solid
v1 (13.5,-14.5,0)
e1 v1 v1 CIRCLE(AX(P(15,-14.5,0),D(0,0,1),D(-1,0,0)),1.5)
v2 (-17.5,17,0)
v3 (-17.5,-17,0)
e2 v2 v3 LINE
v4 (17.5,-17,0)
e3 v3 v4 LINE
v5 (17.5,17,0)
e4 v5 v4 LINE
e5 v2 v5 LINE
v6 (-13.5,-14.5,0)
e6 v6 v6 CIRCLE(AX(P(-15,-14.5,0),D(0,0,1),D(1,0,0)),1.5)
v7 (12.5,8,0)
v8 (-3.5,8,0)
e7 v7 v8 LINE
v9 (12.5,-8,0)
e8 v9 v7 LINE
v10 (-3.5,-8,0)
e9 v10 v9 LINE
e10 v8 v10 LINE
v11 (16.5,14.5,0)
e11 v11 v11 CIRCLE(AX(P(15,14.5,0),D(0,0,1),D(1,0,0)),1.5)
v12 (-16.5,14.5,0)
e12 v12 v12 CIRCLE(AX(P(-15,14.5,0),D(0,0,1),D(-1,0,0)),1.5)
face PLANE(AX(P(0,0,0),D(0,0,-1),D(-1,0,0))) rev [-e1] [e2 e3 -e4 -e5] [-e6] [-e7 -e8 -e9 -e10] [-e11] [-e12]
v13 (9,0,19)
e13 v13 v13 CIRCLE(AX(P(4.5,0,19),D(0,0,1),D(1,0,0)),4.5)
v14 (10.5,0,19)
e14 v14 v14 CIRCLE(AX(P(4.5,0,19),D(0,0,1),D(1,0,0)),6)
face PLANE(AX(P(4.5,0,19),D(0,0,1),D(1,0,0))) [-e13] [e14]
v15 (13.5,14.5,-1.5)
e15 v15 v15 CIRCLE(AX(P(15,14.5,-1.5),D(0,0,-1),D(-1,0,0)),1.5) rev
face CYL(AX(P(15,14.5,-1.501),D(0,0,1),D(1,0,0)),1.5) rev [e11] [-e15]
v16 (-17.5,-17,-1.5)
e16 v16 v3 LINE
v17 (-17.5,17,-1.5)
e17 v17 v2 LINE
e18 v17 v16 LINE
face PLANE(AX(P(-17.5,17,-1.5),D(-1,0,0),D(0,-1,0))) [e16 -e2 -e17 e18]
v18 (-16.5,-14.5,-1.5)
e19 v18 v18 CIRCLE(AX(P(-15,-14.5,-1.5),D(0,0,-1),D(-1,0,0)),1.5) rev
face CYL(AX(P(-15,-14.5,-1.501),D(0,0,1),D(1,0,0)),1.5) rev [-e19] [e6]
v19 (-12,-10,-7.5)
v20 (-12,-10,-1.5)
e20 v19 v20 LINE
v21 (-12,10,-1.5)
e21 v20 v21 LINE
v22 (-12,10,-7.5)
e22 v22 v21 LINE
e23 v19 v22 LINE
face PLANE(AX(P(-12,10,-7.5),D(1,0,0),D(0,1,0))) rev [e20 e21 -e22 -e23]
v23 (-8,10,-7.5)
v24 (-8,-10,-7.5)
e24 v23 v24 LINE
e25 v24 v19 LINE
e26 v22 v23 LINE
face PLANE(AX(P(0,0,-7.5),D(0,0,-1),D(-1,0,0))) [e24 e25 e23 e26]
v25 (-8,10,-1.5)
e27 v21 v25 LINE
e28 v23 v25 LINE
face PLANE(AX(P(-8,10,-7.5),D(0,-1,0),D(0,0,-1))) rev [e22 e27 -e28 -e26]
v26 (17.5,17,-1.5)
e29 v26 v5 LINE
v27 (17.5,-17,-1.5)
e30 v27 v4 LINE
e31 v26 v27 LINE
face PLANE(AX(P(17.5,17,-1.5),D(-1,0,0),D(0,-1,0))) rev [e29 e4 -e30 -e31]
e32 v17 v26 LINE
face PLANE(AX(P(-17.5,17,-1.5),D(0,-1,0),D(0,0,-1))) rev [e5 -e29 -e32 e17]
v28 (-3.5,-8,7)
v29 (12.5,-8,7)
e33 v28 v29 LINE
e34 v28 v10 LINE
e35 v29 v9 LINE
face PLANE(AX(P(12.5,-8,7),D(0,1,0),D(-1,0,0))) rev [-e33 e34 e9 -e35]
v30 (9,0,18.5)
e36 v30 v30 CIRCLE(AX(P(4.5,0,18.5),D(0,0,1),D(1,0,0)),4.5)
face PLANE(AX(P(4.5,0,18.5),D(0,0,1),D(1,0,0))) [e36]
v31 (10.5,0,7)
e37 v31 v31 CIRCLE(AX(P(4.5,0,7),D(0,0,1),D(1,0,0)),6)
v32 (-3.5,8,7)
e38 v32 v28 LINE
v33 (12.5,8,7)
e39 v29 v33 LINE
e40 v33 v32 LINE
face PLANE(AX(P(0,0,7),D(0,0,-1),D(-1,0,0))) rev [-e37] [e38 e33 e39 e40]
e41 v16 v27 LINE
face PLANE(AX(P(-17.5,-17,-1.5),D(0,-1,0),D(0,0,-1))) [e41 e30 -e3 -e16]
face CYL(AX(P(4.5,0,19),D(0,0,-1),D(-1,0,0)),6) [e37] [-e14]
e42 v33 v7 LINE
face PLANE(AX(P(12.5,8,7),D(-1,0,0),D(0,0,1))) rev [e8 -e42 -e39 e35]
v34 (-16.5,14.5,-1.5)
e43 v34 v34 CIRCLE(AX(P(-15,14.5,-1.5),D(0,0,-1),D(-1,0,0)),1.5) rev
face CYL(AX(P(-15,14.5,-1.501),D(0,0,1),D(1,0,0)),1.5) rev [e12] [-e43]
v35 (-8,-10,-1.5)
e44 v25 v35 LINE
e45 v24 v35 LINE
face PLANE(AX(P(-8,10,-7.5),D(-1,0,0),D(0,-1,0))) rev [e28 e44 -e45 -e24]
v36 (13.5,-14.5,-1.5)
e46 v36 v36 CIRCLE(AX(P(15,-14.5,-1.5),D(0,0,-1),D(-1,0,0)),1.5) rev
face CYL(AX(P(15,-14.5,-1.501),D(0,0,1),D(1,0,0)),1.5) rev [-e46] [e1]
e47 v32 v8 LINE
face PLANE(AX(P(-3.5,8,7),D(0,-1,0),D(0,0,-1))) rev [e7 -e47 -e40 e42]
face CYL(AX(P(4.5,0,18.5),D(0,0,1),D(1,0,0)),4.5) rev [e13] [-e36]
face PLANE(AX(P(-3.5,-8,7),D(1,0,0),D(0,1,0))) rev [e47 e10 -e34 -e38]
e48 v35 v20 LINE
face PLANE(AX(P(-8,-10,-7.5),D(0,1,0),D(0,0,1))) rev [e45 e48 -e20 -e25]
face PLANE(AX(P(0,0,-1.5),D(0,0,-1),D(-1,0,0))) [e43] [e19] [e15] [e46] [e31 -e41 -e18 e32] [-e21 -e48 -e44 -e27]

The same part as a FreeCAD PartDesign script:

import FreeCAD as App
import Part
import Sketcher

V = App.Vector


def add_polygon(sketch, points):
    """Adds a closed chain of lines whose ends are joined by coincident constraints."""
    first, n = sketch.GeometryCount, len(points)
    for a, b in zip(points, points[1:] + points[:1]):
        sketch.addGeometry(Part.LineSegment(App.Vector(*a, 0), App.Vector(*b, 0)), False)
    for i in range(n):
        sketch.addConstraint(Sketcher.Constraint("Coincident", first + i, 2, first + (i + 1) % n, 1))

doc = App.newDocument("Part")
params = doc.addObject("Spreadsheet::Sheet", "Params")
for row, (alias, value) in enumerate([
    ("sketch1_width", "35 mm"),
    ("sketch1_height", "34 mm"),
    ("pad1_length", "1.5 mm"),
    ("sketch2_diameter", "3 mm"),
    ("sketch3_diameter", "3 mm"),
    ("sketch4_diameter", "3 mm"),
    ("sketch5_diameter", "3 mm"),
    ("sketch6_width", "16 mm"),
    ("pad2_length", "7 mm"),
    ("sketch7_diameter", "12 mm"),
    ("pad3_length", "12 mm"),
    ("sketch8_diameter", "9 mm"),
    ("pocket5_length", "0.5 mm"),
    ("sketch9_width", "4 mm"),
    ("sketch9_height", "20 mm"),
    ("pad4_length", "6 mm"),
], start=1):
    params.set(f"A{row}", alias)
    params.set(f"B{row}", "=" + value)
    params.setAlias(f"B{row}", alias)

body = doc.addObject("PartDesign::Body", "Body")

sketch1 = body.newObject("Sketcher::SketchObject", "Sketch")
sketch1.AttachmentSupport = (doc.getObject("XY_Plane"), [""])
sketch1.MapMode = "FlatFace"
add_polygon(sketch1, [(-18, 17), (-18, -17), (18, -17), (18, 17)])
sketch1.addConstraint(Sketcher.Constraint("Vertical", 0))
sketch1.addConstraint(Sketcher.Constraint("Horizontal", 1))
sketch1.addConstraint(Sketcher.Constraint("Vertical", 2))
sketch1.addConstraint(Sketcher.Constraint("Horizontal", 3))
sketch1.addConstraint(Sketcher.Constraint("Symmetric", 0, 2, 2, 2, -1, 1))
sketch1.addConstraint(Sketcher.Constraint("DistanceX", 1, 1, 1, 2, 35.0))
sketch1.addConstraint(Sketcher.Constraint("DistanceY", 0, 2, 0, 1, 34.0))
sketch1.setExpression("Constraints[9]", "Params.sketch1_width")
sketch1.setExpression("Constraints[10]", "Params.sketch1_height")
pad1 = body.newObject("PartDesign::Pad", "Pad")
pad1.Profile = sketch1
pad1.setExpression("Length", "Params.pad1_length")
pad1.Reversed = True

sketch2 = body.newObject("Sketcher::SketchObject", "Sketch001")
sketch2.AttachmentSupport = (doc.getObject("XY_Plane"), [""])
sketch2.MapMode = "FlatFace"
sketch2.addGeometry(Part.Circle(V(-15, -14.5, 0), V(0, 0, 1), 1.5), False)
sketch2.addConstraint(Sketcher.Constraint("Diameter", 0, 3.0))
sketch2.addConstraint(Sketcher.Constraint("DistanceX", 0, 3, -1, 1, 15.0))
sketch2.addConstraint(Sketcher.Constraint("DistanceY", 0, 3, -1, 1, 14.5))
sketch2.setExpression("Constraints[0]", "Params.sketch2_diameter")
pocket1 = body.newObject("PartDesign::Pocket", "Pocket")
pocket1.Profile = sketch2
pocket1.Type = "UpToFirst"

sketch3 = body.newObject("Sketcher::SketchObject", "Sketch002")
sketch3.AttachmentSupport = (doc.getObject("XY_Plane"), [""])
sketch3.MapMode = "FlatFace"
sketch3.addGeometry(Part.Circle(V(15, -14.5, 0), V(0, 0, 1), 1.5), False)
sketch3.addConstraint(Sketcher.Constraint("Diameter", 0, 3.0))
sketch3.addConstraint(Sketcher.Constraint("DistanceX", -1, 1, 0, 3, 15.0))
sketch3.addConstraint(Sketcher.Constraint("DistanceY", 0, 3, -1, 1, 14.5))
sketch3.setExpression("Constraints[0]", "Params.sketch3_diameter")
pocket2 = body.newObject("PartDesign::Pocket", "Pocket001")
pocket2.Profile = sketch3
pocket2.Type = "UpToFirst"

sketch4 = body.newObject("Sketcher::SketchObject", "Sketch003")
sketch4.AttachmentSupport = (doc.getObject("XY_Plane"), [""])
sketch4.MapMode = "FlatFace"
sketch4.addGeometry(Part.Circle(V(15, 14.5, 0), V(0, 0, 1), 1.5), False)
sketch4.addConstraint(Sketcher.Constraint("Diameter", 0, 3.0))
sketch4.addConstraint(Sketcher.Constraint("DistanceX", -1, 1, 0, 3, 15.0))
sketch4.addConstraint(Sketcher.Constraint("DistanceY", -1, 1, 0, 3, 14.5))
sketch4.setExpression("Constraints[0]", "Params.sketch4_diameter")
pocket3 = body.newObject("PartDesign::Pocket", "Pocket002")
pocket3.Profile = sketch4
pocket3.Type = "UpToFirst"

sketch5 = body.newObject("Sketcher::SketchObject", "Sketch004")
sketch5.AttachmentSupport = (doc.getObject("XY_Plane"), [""])
sketch5.MapMode = "FlatFace"
sketch5.addGeometry(Part.Circle(V(-15, 14.5, 0), V(0, 0, 1), 1.5), False)
sketch5.addConstraint(Sketcher.Constraint("Diameter", 0, 3.0))
sketch5.addConstraint(Sketcher.Constraint("DistanceX", 0, 3, -1, 1, 15.0))
sketch5.addConstraint(Sketcher.Constraint("DistanceY", -1, 1, 0, 3, 14.5))
sketch5.setExpression("Constraints[0]", "Params.sketch5_diameter")
pocket4 = body.newObject("PartDesign::Pocket", "Pocket003")
pocket4.Profile = sketch5
pocket4.Type = "UpToFirst"

sketch6 = body.newObject("Sketcher::SketchObject", "Sketch005")
sketch6.AttachmentSupport = (doc.getObject("XY_Plane"), [""])
sketch6.MapMode = "FlatFace"
add_polygon(sketch6, [(-4, 8), (-4, -8), (12, -8), (12, 8)])
sketch6.addConstraint(Sketcher.Constraint("Vertical", 0))
sketch6.addConstraint(Sketcher.Constraint("Horizontal", 1))
sketch6.addConstraint(Sketcher.Constraint("Vertical", 2))
sketch6.addConstraint(Sketcher.Constraint("Horizontal", 3))
sketch6.addConstraint(Sketcher.Constraint("Equal", 3, 0))
sketch6.addConstraint(Sketcher.Constraint("DistanceX", 1, 1, 1, 2, 16.0))
sketch6.addConstraint(Sketcher.Constraint("DistanceY", 0, 2, -1, 1, 8.0))
sketch6.addConstraint(Sketcher.Constraint("DistanceX", 0, 2, -1, 1, 3.5))
sketch6.setExpression("Constraints[9]", "Params.sketch6_width")
pad2 = body.newObject("PartDesign::Pad", "Pad001")
pad2.Profile = sketch6
pad2.setExpression("Length", "Params.pad2_length")

sketch7 = body.newObject("Sketcher::SketchObject", "Sketch006")
sketch7.AttachmentSupport = (doc.getObject("XY_Plane"), [""])
sketch7.MapMode = "FlatFace"
sketch7.AttachmentOffset = App.Placement(V(0, 0, 7), App.Rotation())
sketch7.addGeometry(Part.Circle(V(4, 0, 0), V(0, 0, 1), 6), False)
sketch7.addConstraint(Sketcher.Constraint("PointOnObject", 0, 3, -1))
sketch7.addConstraint(Sketcher.Constraint("Diameter", 0, 12.0))
sketch7.addConstraint(Sketcher.Constraint("DistanceX", -1, 1, 0, 3, 4.5))
sketch7.setExpression("Constraints[1]", "Params.sketch7_diameter")
pad3 = body.newObject("PartDesign::Pad", "Pad002")
pad3.Profile = sketch7
pad3.setExpression("Length", "Params.pad3_length")

sketch8 = body.newObject("Sketcher::SketchObject", "Sketch007")
sketch8.AttachmentSupport = (doc.getObject("XY_Plane"), [""])
sketch8.MapMode = "FlatFace"
sketch8.AttachmentOffset = App.Placement(V(0, 0, 19), App.Rotation())
sketch8.addGeometry(Part.Circle(V(4.5, 0, 0), V(0, 0, 1), 4.5), False)
sketch8.addConstraint(Sketcher.Constraint("PointOnObject", 0, 3, -1))
sketch8.addConstraint(Sketcher.Constraint("Diameter", 0, 9.0))
sketch8.addConstraint(Sketcher.Constraint("DistanceX", -1, 1, 0, 3, 4.5))
sketch8.setExpression("Constraints[1]", "Params.sketch8_diameter")
pocket5 = body.newObject("PartDesign::Pocket", "Pocket004")
pocket5.Profile = sketch8
pocket5.setExpression("Length", "Params.pocket5_length")

sketch9 = body.newObject("Sketcher::SketchObject", "Sketch008")
sketch9.AttachmentSupport = (doc.getObject("XY_Plane"), [""])
sketch9.MapMode = "FlatFace"
sketch9.AttachmentOffset = App.Placement(V(0, 0, -1.5), App.Rotation())
add_polygon(sketch9, [(-8, 10), (-8, -10), (-12, -10), (-12, 10)])
sketch9.addConstraint(Sketcher.Constraint("Vertical", 0))
sketch9.addConstraint(Sketcher.Constraint("Horizontal", 1))
sketch9.addConstraint(Sketcher.Constraint("Vertical", 2))
sketch9.addConstraint(Sketcher.Constraint("Horizontal", 3))
sketch9.addConstraint(Sketcher.Constraint("DistanceX", 1, 2, 1, 1, 4.0))
sketch9.addConstraint(Sketcher.Constraint("DistanceY", 0, 2, 0, 1, 20.0))
sketch9.addConstraint(Sketcher.Constraint("DistanceX", 0, 2, -1, 1, 8.0))
sketch9.addConstraint(Sketcher.Constraint("DistanceY", 0, 2, -1, 1, 10.0))
sketch9.setExpression("Constraints[8]", "Params.sketch9_width")
sketch9.setExpression("Constraints[9]", "Params.sketch9_height")
pad4 = body.newObject("PartDesign::Pad", "Pad003")
pad4.Profile = sketch9
pad4.setExpression("Length", "Params.pad4_length")
pad4.Reversed = True

doc.recompute()
